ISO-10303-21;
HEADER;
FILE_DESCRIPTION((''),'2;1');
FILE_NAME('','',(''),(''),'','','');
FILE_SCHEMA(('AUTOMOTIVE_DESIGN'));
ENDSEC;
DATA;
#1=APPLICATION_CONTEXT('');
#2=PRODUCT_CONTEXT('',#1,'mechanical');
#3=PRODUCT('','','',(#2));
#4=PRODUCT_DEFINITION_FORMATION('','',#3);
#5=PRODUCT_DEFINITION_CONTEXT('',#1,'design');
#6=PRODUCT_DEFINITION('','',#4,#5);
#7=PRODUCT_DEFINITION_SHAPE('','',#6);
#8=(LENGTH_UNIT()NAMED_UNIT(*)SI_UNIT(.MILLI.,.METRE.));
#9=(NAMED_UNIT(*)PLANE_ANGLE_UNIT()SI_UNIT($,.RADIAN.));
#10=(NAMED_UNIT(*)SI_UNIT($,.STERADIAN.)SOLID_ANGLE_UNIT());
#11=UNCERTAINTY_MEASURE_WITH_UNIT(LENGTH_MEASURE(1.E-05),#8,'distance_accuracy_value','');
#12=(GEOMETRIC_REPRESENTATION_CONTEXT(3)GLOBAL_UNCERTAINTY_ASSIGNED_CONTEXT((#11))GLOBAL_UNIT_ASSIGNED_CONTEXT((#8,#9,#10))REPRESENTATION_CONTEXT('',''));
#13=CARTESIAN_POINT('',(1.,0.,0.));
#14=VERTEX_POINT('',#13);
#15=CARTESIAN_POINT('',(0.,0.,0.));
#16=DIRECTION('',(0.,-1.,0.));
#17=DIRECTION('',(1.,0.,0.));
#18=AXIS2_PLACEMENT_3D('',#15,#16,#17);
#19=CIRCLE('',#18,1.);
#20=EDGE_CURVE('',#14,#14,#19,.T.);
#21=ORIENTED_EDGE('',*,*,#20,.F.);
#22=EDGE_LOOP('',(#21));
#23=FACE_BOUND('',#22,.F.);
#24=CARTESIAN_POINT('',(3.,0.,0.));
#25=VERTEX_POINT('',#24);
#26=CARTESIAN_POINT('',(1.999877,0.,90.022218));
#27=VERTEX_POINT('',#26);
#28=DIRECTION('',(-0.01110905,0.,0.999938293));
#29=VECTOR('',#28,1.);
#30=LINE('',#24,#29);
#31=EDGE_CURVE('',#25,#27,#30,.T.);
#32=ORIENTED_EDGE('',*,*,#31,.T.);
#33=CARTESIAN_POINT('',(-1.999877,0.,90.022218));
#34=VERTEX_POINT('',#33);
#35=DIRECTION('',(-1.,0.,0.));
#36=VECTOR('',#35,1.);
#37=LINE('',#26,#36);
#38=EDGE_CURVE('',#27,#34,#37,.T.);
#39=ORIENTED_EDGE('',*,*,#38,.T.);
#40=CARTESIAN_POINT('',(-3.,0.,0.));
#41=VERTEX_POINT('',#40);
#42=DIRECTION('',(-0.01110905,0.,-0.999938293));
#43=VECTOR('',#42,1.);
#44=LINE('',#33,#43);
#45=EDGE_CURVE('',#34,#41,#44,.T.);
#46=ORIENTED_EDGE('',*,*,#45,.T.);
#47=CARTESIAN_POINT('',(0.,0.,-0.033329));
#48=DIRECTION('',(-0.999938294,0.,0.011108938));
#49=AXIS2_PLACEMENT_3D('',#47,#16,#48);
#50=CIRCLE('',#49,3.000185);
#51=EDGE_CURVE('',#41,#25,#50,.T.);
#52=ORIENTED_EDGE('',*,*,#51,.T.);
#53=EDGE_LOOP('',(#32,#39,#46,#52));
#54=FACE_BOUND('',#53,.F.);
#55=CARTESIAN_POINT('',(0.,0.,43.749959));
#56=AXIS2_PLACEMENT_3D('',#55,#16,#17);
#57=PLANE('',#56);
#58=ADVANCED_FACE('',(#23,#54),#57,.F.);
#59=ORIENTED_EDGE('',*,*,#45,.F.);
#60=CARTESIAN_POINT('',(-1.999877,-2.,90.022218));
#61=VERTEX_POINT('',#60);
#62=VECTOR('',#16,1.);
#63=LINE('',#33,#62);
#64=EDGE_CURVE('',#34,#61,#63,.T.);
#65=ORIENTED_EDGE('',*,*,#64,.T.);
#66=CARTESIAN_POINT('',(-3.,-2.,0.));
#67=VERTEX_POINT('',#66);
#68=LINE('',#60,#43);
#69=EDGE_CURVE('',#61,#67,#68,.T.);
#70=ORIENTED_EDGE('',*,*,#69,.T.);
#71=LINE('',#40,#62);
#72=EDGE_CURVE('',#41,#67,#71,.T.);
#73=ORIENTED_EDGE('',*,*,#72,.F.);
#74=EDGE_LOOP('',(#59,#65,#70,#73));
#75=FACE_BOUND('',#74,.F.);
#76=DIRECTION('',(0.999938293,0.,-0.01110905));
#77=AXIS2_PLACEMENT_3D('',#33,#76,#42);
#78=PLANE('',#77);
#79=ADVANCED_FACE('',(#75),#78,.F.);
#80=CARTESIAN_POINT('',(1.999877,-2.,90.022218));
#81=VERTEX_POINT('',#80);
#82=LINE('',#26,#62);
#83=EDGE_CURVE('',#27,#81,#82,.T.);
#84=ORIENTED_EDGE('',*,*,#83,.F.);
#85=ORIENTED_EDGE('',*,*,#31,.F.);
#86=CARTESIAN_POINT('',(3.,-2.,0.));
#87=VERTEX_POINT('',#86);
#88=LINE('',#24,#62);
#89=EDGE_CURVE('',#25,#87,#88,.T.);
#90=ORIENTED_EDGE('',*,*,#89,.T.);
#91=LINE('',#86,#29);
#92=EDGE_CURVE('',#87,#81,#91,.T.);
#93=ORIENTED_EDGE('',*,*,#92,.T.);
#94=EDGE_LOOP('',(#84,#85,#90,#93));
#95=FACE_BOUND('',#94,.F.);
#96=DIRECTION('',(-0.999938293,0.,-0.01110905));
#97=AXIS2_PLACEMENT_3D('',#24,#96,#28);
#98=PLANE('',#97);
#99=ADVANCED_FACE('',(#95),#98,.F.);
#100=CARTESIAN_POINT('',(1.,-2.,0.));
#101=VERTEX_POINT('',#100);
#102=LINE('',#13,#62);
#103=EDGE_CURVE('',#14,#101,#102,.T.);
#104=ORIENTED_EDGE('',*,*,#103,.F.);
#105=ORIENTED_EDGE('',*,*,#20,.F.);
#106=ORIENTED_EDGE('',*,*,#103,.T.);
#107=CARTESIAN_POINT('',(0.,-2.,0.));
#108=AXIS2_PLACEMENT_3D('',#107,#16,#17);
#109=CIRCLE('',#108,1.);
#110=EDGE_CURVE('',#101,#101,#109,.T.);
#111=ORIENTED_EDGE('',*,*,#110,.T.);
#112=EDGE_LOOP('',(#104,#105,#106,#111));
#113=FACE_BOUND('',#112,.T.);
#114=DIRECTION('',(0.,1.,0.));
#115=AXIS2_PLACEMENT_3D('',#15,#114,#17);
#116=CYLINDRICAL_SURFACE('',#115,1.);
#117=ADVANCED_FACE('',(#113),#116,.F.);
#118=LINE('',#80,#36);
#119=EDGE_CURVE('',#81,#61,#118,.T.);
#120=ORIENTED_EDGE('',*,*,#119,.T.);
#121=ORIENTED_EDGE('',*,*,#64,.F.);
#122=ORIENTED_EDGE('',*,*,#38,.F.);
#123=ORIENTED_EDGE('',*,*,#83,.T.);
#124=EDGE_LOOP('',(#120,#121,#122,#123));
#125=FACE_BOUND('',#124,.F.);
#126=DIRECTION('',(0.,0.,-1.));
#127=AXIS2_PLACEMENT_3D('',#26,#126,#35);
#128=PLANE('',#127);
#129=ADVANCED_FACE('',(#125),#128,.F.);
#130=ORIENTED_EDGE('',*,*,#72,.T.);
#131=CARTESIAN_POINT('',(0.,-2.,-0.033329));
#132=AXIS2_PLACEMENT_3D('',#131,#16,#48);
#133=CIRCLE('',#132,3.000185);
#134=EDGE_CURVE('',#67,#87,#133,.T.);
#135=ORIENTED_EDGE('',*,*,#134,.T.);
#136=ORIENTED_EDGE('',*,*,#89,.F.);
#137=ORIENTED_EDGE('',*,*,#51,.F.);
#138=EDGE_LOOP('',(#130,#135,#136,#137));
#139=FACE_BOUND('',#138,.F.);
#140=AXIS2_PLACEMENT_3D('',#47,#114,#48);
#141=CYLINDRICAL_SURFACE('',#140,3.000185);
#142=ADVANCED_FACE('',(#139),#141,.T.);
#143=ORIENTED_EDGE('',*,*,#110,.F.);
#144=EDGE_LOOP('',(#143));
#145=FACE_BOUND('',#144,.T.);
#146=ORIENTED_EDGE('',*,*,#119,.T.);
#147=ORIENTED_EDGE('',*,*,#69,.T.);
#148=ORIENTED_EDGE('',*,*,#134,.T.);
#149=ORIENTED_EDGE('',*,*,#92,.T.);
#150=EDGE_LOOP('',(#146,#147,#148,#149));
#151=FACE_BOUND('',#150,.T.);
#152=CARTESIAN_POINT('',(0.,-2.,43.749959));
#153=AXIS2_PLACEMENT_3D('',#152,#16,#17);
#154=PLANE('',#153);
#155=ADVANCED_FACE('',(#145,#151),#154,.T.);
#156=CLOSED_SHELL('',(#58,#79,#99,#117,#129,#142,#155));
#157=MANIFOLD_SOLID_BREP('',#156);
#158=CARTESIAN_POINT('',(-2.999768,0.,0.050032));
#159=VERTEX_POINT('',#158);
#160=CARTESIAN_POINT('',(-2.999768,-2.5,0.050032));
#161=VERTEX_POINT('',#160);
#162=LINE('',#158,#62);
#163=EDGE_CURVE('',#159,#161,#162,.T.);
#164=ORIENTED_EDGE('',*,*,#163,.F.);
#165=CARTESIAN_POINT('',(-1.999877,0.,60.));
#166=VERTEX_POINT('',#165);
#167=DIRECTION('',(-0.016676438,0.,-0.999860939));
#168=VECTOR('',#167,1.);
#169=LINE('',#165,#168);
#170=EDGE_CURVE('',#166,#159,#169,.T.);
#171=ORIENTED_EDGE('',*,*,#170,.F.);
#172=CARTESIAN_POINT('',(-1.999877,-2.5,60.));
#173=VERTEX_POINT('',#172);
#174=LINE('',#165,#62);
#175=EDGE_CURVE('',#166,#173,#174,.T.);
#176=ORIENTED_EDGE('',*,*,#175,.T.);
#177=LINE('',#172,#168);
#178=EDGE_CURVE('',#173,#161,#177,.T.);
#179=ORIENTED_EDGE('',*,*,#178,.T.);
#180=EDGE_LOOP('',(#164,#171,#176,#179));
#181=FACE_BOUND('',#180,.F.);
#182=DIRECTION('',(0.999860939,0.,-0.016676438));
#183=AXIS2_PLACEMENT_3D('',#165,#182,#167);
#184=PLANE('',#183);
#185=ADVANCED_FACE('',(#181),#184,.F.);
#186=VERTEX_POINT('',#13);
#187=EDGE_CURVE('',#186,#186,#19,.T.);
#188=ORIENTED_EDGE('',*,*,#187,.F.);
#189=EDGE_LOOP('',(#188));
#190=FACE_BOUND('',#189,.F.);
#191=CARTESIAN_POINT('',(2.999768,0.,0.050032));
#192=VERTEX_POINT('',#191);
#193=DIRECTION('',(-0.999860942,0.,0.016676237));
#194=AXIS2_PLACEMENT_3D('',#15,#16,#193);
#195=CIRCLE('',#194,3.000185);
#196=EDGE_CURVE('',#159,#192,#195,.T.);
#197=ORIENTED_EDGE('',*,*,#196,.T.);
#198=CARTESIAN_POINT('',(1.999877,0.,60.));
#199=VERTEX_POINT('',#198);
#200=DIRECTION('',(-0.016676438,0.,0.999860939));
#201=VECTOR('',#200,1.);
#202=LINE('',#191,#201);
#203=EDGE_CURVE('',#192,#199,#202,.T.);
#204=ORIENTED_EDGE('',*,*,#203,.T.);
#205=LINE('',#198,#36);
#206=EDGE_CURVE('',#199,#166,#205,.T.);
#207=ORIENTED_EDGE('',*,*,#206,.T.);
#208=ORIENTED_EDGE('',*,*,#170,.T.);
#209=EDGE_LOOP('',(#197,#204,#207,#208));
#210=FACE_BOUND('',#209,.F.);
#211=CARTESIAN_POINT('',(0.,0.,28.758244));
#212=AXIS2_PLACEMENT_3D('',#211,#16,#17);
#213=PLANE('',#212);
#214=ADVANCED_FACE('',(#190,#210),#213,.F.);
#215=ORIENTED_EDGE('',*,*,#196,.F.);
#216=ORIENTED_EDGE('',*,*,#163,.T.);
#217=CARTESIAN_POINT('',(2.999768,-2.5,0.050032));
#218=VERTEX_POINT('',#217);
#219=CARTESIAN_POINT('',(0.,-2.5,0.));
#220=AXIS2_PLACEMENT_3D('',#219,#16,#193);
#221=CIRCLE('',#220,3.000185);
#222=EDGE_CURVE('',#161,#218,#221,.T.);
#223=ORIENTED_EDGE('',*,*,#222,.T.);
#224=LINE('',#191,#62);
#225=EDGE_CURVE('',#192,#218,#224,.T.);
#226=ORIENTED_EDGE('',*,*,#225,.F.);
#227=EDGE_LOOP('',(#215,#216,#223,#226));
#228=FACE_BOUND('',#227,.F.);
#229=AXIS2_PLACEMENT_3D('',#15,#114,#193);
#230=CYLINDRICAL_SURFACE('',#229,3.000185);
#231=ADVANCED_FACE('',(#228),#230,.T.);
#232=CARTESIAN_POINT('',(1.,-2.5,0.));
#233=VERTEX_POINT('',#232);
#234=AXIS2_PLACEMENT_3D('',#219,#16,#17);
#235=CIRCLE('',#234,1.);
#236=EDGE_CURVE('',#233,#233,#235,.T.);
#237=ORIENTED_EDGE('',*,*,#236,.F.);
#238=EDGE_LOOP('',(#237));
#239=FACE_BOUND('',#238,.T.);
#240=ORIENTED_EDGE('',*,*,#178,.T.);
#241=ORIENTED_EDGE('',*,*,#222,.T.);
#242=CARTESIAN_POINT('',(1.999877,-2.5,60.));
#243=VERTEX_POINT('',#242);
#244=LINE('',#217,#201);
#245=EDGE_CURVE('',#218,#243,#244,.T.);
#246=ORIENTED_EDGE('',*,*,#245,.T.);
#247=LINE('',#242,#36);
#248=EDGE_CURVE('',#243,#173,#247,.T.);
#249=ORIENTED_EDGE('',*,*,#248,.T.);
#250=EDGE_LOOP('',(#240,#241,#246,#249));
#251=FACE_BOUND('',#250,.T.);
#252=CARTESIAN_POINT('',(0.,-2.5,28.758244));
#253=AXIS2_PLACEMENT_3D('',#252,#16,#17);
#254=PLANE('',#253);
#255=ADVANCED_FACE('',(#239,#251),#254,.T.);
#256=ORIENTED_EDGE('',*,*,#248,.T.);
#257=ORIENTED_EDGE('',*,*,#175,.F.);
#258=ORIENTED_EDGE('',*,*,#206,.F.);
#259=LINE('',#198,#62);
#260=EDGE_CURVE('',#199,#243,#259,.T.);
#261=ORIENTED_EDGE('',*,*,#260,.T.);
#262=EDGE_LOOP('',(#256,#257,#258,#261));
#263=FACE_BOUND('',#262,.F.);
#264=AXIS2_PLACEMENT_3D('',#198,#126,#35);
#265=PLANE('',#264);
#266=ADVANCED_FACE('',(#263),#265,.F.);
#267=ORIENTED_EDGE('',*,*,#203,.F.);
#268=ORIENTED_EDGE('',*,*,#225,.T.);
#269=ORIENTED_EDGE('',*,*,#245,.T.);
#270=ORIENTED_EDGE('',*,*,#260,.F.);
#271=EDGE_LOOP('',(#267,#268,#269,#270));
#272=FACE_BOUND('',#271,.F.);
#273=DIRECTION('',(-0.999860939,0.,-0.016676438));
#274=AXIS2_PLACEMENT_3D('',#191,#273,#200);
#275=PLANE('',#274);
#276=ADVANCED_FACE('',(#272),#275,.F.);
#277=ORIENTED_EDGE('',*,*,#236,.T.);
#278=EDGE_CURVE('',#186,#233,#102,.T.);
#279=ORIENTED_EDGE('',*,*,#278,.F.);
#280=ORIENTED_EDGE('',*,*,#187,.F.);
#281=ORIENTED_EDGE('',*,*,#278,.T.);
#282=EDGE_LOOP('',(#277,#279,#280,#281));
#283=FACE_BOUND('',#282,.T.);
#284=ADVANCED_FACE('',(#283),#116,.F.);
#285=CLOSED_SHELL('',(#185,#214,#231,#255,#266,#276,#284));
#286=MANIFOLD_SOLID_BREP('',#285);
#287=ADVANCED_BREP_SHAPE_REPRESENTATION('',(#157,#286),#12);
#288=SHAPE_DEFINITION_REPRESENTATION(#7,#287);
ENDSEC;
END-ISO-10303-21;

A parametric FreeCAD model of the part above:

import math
import FreeCAD as App
import Part
import Sketcher
from FreeCAD import Vector

doc = App.newDocument("Part")
body = doc.addObject("PartDesign::Body", "Body")

# Sketch on XZ plane
sketch1 = body.newObject("Sketcher::SketchObject", "Sketch")
sketch1.AttachmentSupport = (doc.getObject("XZ_Plane"), [""])
sketch1.MapMode = "FlatFace"
sketch1.addGeometry([
    Part.LineSegment(Vector(-1.999877, 90.022218, 0), Vector(-3, 0, 0)),  # 0
    Part.ArcOfCircle(Part.Circle(Vector(0, -0.033329, 0), Vector(0, 0, 1), 3.000185), math.radians(179.363492), math.radians(360.636508)),  # 1
    Part.LineSegment(Vector(3, 0, 0), Vector(1.999877, 90.022218, 0)),  # 2
    Part.LineSegment(Vector(1.999877, 90.022218, 0), Vector(-1.999877, 90.022218, 0)),  # 3
    Part.Circle(Vector(0, 0, 0), Vector(0, 0, 1), 1),  # 4
], False)
sketch1.addConstraint([
    Sketcher.Constraint("Tangent", 0, 2, 1, 1),
    Sketcher.Constraint("Tangent", 1, 2, 2, 1),
    Sketcher.Constraint("Coincident", 2, 2, 3, 1),
    Sketcher.Constraint("Coincident", 3, 2, 0, 1),
    Sketcher.Constraint("Horizontal", 3),
    Sketcher.Constraint("Coincident", 4, 3, -1, 1),
    Sketcher.Constraint("Symmetric", 0, 2, 1, 2, -1, 1),
    Sketcher.Constraint("PointOnObject", 0, 2, -1),
    Sketcher.Constraint("Diameter", 4, 2.0),
    Sketcher.Constraint("DistanceX", 0, 2, -1, 1, 3.0),
    Sketcher.Constraint("DistanceX", 3, 2, 3, 1, 3.999754),
    Sketcher.Constraint("Distance", 0, 90.027773),
])
pad1 = body.newObject("PartDesign::Pad", "Pad")
pad1.Profile = sketch1
pad1.Length = 2
body2 = doc.addObject("PartDesign::Body", "Body001")

# Sketch on XZ plane
sketch2 = body2.newObject("Sketcher::SketchObject", "Sketch001")
sketch2.AttachmentSupport = (doc.getObject("XZ_Plane001"), [""])
sketch2.MapMode = "FlatFace"
sketch2.addGeometry([
    Part.LineSegment(Vector(-1.999877, 60, 0), Vector(-2.999768, 0.050032, 0)),  # 0
    Part.ArcOfCircle(Part.Circle(Vector(0, 0, 0), Vector(0, 0, 1), 3.000185), math.radians(179.044478), math.radians(360.955522)),  # 1
    Part.LineSegment(Vector(2.999768, 0.050032, 0), Vector(1.999877, 60, 0)),  # 2
    Part.LineSegment(Vector(1.999877, 60, 0), Vector(-1.999877, 60, 0)),  # 3
    Part.Circle(Vector(0, 0, 0), Vector(0, 0, 1), 1),  # 4
], False)
sketch2.addConstraint([
    Sketcher.Constraint("Tangent", 0, 2, 1, 1),
    Sketcher.Constraint("Tangent", 1, 2, 2, 1),
    Sketcher.Constraint("Coincident", 2, 2, 3, 1),
    Sketcher.Constraint("Coincident", 3, 2, 0, 1),
    Sketcher.Constraint("Horizontal", 3),
    Sketcher.Constraint("Coincident", 1, 3, -1, 1),
    Sketcher.Constraint("Coincident", 4, 3, -1, 1),
    Sketcher.Constraint("Horizontal", 0, 2, 1, 2),
    Sketcher.Constraint("Diameter", 4, 2.0),
    Sketcher.Constraint("DistanceY", -1, 1, 2, 2, 60.0),
    Sketcher.Constraint("Radius", 1, 3.000185),
    Sketcher.Constraint("DistanceX", 3, 2, 3, 1, 3.999754),
])
pad2 = body2.newObject("PartDesign::Pad", "Pad001")
pad2.Profile = sketch2
pad2.Length = 2.5

doc.recompute()
